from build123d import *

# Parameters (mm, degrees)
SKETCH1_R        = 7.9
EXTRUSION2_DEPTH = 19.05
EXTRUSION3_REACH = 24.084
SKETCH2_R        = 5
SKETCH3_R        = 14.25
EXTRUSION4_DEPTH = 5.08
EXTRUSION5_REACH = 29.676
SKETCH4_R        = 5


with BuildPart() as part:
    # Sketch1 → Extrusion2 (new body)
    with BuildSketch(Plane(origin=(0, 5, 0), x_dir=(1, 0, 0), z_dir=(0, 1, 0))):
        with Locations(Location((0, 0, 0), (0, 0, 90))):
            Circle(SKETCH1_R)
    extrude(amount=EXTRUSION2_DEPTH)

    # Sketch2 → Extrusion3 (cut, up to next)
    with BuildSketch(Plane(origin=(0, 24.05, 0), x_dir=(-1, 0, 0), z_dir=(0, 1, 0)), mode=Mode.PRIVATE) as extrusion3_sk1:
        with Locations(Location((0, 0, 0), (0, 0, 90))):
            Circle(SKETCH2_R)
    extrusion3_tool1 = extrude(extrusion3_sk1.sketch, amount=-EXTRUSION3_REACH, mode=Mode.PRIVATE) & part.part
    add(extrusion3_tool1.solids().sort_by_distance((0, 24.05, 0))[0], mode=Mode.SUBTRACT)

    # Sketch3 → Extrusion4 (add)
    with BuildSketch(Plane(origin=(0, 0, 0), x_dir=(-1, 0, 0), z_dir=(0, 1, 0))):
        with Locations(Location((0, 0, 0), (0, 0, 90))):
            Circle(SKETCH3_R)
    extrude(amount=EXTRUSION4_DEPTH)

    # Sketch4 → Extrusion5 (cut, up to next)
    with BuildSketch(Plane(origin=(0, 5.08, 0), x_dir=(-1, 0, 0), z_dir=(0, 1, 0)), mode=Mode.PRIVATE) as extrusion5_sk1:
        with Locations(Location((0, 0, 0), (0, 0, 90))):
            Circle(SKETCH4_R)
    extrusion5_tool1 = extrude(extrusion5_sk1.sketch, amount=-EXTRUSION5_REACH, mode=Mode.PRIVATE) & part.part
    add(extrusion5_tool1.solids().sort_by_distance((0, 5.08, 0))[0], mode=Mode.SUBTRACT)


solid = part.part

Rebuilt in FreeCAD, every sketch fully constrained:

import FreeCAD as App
import Part
import Sketcher

V = App.Vector
Q = App.Units.Quantity

doc = App.newDocument("Part")
body = doc.addObject("PartDesign::Body", "Body")

sketch1 = body.newObject("Sketcher::SketchObject", "Sketch")
sketch1.AttachmentSupport = (doc.getObject("XZ_Plane"), [""])
sketch1.MapMode = "FlatFace"
sketch1.AttachmentOffset = App.Placement(V(0, 0, -5), App.Rotation())
sketch1.addGeometry(Part.Circle(V(0, 0, 0), V(0, 0, 1), 8), False)
sketch1.addConstraint([
    Sketcher.Constraint("Coincident", 0, 3, -1, 1),
    Sketcher.Constraint("Diameter", 0, Q("15.8 mm")),
])
pad1 = body.newObject("PartDesign::Pad", "Pad")
pad1.Profile = sketch1
pad1.Length = 19.05
pad1.Reversed = True

sketch2 = body.newObject("Sketcher::SketchObject", "Sketch001")
sketch2.AttachmentSupport = (doc.getObject("XZ_Plane"), [""])
sketch2.MapMode = "FlatFace"
sketch2.AttachmentOffset = App.Placement(V(0, 0, -24.05), App.Rotation())
sketch2.addGeometry(Part.Circle(V(0, 0, 0), V(0, 0, 1), 5), False)
sketch2.addConstraint([
    Sketcher.Constraint("Coincident", 0, 3, -1, 1),
    Sketcher.Constraint("Diameter", 0, Q("10 mm")),
])
pocket1 = body.newObject("PartDesign::Pocket", "Pocket")
pocket1.Profile = sketch2
pocket1.Type = "UpToFirst"
pocket1.Reversed = True

sketch3 = body.newObject("Sketcher::SketchObject", "Sketch002")
sketch3.AttachmentSupport = (doc.getObject("XZ_Plane"), [""])
sketch3.MapMode = "FlatFace"
sketch3.addGeometry(Part.Circle(V(0, 0, 0), V(0, 0, 1), 14), False)
sketch3.addConstraint([
    Sketcher.Constraint("Coincident", 0, 3, -1, 1),
    Sketcher.Constraint("Diameter", 0, Q("28.5 mm")),
])
pad2 = body.newObject("PartDesign::Pad", "Pad001")
pad2.Profile = sketch3
pad2.Length = 5.08
pad2.Reversed = True

sketch4 = body.newObject("Sketcher::SketchObject", "Sketch003")
sketch4.AttachmentSupport = (doc.getObject("XZ_Plane"), [""])
sketch4.MapMode = "FlatFace"
sketch4.AttachmentOffset = App.Placement(V(0, 0, -5.08), App.Rotation())
sketch4.addGeometry(Part.Circle(V(0, 0, 0), V(0, 0, 1), 5), False)
sketch4.addConstraint([
    Sketcher.Constraint("Coincident", 0, 3, -1, 1),
    Sketcher.Constraint("Diameter", 0, Q("10 mm")),
])
pocket2 = body.newObject("PartDesign::Pocket", "Pocket001")
pocket2.Profile = sketch4
pocket2.Type = "UpToFirst"
pocket2.Reversed = True

doc.recompute()
